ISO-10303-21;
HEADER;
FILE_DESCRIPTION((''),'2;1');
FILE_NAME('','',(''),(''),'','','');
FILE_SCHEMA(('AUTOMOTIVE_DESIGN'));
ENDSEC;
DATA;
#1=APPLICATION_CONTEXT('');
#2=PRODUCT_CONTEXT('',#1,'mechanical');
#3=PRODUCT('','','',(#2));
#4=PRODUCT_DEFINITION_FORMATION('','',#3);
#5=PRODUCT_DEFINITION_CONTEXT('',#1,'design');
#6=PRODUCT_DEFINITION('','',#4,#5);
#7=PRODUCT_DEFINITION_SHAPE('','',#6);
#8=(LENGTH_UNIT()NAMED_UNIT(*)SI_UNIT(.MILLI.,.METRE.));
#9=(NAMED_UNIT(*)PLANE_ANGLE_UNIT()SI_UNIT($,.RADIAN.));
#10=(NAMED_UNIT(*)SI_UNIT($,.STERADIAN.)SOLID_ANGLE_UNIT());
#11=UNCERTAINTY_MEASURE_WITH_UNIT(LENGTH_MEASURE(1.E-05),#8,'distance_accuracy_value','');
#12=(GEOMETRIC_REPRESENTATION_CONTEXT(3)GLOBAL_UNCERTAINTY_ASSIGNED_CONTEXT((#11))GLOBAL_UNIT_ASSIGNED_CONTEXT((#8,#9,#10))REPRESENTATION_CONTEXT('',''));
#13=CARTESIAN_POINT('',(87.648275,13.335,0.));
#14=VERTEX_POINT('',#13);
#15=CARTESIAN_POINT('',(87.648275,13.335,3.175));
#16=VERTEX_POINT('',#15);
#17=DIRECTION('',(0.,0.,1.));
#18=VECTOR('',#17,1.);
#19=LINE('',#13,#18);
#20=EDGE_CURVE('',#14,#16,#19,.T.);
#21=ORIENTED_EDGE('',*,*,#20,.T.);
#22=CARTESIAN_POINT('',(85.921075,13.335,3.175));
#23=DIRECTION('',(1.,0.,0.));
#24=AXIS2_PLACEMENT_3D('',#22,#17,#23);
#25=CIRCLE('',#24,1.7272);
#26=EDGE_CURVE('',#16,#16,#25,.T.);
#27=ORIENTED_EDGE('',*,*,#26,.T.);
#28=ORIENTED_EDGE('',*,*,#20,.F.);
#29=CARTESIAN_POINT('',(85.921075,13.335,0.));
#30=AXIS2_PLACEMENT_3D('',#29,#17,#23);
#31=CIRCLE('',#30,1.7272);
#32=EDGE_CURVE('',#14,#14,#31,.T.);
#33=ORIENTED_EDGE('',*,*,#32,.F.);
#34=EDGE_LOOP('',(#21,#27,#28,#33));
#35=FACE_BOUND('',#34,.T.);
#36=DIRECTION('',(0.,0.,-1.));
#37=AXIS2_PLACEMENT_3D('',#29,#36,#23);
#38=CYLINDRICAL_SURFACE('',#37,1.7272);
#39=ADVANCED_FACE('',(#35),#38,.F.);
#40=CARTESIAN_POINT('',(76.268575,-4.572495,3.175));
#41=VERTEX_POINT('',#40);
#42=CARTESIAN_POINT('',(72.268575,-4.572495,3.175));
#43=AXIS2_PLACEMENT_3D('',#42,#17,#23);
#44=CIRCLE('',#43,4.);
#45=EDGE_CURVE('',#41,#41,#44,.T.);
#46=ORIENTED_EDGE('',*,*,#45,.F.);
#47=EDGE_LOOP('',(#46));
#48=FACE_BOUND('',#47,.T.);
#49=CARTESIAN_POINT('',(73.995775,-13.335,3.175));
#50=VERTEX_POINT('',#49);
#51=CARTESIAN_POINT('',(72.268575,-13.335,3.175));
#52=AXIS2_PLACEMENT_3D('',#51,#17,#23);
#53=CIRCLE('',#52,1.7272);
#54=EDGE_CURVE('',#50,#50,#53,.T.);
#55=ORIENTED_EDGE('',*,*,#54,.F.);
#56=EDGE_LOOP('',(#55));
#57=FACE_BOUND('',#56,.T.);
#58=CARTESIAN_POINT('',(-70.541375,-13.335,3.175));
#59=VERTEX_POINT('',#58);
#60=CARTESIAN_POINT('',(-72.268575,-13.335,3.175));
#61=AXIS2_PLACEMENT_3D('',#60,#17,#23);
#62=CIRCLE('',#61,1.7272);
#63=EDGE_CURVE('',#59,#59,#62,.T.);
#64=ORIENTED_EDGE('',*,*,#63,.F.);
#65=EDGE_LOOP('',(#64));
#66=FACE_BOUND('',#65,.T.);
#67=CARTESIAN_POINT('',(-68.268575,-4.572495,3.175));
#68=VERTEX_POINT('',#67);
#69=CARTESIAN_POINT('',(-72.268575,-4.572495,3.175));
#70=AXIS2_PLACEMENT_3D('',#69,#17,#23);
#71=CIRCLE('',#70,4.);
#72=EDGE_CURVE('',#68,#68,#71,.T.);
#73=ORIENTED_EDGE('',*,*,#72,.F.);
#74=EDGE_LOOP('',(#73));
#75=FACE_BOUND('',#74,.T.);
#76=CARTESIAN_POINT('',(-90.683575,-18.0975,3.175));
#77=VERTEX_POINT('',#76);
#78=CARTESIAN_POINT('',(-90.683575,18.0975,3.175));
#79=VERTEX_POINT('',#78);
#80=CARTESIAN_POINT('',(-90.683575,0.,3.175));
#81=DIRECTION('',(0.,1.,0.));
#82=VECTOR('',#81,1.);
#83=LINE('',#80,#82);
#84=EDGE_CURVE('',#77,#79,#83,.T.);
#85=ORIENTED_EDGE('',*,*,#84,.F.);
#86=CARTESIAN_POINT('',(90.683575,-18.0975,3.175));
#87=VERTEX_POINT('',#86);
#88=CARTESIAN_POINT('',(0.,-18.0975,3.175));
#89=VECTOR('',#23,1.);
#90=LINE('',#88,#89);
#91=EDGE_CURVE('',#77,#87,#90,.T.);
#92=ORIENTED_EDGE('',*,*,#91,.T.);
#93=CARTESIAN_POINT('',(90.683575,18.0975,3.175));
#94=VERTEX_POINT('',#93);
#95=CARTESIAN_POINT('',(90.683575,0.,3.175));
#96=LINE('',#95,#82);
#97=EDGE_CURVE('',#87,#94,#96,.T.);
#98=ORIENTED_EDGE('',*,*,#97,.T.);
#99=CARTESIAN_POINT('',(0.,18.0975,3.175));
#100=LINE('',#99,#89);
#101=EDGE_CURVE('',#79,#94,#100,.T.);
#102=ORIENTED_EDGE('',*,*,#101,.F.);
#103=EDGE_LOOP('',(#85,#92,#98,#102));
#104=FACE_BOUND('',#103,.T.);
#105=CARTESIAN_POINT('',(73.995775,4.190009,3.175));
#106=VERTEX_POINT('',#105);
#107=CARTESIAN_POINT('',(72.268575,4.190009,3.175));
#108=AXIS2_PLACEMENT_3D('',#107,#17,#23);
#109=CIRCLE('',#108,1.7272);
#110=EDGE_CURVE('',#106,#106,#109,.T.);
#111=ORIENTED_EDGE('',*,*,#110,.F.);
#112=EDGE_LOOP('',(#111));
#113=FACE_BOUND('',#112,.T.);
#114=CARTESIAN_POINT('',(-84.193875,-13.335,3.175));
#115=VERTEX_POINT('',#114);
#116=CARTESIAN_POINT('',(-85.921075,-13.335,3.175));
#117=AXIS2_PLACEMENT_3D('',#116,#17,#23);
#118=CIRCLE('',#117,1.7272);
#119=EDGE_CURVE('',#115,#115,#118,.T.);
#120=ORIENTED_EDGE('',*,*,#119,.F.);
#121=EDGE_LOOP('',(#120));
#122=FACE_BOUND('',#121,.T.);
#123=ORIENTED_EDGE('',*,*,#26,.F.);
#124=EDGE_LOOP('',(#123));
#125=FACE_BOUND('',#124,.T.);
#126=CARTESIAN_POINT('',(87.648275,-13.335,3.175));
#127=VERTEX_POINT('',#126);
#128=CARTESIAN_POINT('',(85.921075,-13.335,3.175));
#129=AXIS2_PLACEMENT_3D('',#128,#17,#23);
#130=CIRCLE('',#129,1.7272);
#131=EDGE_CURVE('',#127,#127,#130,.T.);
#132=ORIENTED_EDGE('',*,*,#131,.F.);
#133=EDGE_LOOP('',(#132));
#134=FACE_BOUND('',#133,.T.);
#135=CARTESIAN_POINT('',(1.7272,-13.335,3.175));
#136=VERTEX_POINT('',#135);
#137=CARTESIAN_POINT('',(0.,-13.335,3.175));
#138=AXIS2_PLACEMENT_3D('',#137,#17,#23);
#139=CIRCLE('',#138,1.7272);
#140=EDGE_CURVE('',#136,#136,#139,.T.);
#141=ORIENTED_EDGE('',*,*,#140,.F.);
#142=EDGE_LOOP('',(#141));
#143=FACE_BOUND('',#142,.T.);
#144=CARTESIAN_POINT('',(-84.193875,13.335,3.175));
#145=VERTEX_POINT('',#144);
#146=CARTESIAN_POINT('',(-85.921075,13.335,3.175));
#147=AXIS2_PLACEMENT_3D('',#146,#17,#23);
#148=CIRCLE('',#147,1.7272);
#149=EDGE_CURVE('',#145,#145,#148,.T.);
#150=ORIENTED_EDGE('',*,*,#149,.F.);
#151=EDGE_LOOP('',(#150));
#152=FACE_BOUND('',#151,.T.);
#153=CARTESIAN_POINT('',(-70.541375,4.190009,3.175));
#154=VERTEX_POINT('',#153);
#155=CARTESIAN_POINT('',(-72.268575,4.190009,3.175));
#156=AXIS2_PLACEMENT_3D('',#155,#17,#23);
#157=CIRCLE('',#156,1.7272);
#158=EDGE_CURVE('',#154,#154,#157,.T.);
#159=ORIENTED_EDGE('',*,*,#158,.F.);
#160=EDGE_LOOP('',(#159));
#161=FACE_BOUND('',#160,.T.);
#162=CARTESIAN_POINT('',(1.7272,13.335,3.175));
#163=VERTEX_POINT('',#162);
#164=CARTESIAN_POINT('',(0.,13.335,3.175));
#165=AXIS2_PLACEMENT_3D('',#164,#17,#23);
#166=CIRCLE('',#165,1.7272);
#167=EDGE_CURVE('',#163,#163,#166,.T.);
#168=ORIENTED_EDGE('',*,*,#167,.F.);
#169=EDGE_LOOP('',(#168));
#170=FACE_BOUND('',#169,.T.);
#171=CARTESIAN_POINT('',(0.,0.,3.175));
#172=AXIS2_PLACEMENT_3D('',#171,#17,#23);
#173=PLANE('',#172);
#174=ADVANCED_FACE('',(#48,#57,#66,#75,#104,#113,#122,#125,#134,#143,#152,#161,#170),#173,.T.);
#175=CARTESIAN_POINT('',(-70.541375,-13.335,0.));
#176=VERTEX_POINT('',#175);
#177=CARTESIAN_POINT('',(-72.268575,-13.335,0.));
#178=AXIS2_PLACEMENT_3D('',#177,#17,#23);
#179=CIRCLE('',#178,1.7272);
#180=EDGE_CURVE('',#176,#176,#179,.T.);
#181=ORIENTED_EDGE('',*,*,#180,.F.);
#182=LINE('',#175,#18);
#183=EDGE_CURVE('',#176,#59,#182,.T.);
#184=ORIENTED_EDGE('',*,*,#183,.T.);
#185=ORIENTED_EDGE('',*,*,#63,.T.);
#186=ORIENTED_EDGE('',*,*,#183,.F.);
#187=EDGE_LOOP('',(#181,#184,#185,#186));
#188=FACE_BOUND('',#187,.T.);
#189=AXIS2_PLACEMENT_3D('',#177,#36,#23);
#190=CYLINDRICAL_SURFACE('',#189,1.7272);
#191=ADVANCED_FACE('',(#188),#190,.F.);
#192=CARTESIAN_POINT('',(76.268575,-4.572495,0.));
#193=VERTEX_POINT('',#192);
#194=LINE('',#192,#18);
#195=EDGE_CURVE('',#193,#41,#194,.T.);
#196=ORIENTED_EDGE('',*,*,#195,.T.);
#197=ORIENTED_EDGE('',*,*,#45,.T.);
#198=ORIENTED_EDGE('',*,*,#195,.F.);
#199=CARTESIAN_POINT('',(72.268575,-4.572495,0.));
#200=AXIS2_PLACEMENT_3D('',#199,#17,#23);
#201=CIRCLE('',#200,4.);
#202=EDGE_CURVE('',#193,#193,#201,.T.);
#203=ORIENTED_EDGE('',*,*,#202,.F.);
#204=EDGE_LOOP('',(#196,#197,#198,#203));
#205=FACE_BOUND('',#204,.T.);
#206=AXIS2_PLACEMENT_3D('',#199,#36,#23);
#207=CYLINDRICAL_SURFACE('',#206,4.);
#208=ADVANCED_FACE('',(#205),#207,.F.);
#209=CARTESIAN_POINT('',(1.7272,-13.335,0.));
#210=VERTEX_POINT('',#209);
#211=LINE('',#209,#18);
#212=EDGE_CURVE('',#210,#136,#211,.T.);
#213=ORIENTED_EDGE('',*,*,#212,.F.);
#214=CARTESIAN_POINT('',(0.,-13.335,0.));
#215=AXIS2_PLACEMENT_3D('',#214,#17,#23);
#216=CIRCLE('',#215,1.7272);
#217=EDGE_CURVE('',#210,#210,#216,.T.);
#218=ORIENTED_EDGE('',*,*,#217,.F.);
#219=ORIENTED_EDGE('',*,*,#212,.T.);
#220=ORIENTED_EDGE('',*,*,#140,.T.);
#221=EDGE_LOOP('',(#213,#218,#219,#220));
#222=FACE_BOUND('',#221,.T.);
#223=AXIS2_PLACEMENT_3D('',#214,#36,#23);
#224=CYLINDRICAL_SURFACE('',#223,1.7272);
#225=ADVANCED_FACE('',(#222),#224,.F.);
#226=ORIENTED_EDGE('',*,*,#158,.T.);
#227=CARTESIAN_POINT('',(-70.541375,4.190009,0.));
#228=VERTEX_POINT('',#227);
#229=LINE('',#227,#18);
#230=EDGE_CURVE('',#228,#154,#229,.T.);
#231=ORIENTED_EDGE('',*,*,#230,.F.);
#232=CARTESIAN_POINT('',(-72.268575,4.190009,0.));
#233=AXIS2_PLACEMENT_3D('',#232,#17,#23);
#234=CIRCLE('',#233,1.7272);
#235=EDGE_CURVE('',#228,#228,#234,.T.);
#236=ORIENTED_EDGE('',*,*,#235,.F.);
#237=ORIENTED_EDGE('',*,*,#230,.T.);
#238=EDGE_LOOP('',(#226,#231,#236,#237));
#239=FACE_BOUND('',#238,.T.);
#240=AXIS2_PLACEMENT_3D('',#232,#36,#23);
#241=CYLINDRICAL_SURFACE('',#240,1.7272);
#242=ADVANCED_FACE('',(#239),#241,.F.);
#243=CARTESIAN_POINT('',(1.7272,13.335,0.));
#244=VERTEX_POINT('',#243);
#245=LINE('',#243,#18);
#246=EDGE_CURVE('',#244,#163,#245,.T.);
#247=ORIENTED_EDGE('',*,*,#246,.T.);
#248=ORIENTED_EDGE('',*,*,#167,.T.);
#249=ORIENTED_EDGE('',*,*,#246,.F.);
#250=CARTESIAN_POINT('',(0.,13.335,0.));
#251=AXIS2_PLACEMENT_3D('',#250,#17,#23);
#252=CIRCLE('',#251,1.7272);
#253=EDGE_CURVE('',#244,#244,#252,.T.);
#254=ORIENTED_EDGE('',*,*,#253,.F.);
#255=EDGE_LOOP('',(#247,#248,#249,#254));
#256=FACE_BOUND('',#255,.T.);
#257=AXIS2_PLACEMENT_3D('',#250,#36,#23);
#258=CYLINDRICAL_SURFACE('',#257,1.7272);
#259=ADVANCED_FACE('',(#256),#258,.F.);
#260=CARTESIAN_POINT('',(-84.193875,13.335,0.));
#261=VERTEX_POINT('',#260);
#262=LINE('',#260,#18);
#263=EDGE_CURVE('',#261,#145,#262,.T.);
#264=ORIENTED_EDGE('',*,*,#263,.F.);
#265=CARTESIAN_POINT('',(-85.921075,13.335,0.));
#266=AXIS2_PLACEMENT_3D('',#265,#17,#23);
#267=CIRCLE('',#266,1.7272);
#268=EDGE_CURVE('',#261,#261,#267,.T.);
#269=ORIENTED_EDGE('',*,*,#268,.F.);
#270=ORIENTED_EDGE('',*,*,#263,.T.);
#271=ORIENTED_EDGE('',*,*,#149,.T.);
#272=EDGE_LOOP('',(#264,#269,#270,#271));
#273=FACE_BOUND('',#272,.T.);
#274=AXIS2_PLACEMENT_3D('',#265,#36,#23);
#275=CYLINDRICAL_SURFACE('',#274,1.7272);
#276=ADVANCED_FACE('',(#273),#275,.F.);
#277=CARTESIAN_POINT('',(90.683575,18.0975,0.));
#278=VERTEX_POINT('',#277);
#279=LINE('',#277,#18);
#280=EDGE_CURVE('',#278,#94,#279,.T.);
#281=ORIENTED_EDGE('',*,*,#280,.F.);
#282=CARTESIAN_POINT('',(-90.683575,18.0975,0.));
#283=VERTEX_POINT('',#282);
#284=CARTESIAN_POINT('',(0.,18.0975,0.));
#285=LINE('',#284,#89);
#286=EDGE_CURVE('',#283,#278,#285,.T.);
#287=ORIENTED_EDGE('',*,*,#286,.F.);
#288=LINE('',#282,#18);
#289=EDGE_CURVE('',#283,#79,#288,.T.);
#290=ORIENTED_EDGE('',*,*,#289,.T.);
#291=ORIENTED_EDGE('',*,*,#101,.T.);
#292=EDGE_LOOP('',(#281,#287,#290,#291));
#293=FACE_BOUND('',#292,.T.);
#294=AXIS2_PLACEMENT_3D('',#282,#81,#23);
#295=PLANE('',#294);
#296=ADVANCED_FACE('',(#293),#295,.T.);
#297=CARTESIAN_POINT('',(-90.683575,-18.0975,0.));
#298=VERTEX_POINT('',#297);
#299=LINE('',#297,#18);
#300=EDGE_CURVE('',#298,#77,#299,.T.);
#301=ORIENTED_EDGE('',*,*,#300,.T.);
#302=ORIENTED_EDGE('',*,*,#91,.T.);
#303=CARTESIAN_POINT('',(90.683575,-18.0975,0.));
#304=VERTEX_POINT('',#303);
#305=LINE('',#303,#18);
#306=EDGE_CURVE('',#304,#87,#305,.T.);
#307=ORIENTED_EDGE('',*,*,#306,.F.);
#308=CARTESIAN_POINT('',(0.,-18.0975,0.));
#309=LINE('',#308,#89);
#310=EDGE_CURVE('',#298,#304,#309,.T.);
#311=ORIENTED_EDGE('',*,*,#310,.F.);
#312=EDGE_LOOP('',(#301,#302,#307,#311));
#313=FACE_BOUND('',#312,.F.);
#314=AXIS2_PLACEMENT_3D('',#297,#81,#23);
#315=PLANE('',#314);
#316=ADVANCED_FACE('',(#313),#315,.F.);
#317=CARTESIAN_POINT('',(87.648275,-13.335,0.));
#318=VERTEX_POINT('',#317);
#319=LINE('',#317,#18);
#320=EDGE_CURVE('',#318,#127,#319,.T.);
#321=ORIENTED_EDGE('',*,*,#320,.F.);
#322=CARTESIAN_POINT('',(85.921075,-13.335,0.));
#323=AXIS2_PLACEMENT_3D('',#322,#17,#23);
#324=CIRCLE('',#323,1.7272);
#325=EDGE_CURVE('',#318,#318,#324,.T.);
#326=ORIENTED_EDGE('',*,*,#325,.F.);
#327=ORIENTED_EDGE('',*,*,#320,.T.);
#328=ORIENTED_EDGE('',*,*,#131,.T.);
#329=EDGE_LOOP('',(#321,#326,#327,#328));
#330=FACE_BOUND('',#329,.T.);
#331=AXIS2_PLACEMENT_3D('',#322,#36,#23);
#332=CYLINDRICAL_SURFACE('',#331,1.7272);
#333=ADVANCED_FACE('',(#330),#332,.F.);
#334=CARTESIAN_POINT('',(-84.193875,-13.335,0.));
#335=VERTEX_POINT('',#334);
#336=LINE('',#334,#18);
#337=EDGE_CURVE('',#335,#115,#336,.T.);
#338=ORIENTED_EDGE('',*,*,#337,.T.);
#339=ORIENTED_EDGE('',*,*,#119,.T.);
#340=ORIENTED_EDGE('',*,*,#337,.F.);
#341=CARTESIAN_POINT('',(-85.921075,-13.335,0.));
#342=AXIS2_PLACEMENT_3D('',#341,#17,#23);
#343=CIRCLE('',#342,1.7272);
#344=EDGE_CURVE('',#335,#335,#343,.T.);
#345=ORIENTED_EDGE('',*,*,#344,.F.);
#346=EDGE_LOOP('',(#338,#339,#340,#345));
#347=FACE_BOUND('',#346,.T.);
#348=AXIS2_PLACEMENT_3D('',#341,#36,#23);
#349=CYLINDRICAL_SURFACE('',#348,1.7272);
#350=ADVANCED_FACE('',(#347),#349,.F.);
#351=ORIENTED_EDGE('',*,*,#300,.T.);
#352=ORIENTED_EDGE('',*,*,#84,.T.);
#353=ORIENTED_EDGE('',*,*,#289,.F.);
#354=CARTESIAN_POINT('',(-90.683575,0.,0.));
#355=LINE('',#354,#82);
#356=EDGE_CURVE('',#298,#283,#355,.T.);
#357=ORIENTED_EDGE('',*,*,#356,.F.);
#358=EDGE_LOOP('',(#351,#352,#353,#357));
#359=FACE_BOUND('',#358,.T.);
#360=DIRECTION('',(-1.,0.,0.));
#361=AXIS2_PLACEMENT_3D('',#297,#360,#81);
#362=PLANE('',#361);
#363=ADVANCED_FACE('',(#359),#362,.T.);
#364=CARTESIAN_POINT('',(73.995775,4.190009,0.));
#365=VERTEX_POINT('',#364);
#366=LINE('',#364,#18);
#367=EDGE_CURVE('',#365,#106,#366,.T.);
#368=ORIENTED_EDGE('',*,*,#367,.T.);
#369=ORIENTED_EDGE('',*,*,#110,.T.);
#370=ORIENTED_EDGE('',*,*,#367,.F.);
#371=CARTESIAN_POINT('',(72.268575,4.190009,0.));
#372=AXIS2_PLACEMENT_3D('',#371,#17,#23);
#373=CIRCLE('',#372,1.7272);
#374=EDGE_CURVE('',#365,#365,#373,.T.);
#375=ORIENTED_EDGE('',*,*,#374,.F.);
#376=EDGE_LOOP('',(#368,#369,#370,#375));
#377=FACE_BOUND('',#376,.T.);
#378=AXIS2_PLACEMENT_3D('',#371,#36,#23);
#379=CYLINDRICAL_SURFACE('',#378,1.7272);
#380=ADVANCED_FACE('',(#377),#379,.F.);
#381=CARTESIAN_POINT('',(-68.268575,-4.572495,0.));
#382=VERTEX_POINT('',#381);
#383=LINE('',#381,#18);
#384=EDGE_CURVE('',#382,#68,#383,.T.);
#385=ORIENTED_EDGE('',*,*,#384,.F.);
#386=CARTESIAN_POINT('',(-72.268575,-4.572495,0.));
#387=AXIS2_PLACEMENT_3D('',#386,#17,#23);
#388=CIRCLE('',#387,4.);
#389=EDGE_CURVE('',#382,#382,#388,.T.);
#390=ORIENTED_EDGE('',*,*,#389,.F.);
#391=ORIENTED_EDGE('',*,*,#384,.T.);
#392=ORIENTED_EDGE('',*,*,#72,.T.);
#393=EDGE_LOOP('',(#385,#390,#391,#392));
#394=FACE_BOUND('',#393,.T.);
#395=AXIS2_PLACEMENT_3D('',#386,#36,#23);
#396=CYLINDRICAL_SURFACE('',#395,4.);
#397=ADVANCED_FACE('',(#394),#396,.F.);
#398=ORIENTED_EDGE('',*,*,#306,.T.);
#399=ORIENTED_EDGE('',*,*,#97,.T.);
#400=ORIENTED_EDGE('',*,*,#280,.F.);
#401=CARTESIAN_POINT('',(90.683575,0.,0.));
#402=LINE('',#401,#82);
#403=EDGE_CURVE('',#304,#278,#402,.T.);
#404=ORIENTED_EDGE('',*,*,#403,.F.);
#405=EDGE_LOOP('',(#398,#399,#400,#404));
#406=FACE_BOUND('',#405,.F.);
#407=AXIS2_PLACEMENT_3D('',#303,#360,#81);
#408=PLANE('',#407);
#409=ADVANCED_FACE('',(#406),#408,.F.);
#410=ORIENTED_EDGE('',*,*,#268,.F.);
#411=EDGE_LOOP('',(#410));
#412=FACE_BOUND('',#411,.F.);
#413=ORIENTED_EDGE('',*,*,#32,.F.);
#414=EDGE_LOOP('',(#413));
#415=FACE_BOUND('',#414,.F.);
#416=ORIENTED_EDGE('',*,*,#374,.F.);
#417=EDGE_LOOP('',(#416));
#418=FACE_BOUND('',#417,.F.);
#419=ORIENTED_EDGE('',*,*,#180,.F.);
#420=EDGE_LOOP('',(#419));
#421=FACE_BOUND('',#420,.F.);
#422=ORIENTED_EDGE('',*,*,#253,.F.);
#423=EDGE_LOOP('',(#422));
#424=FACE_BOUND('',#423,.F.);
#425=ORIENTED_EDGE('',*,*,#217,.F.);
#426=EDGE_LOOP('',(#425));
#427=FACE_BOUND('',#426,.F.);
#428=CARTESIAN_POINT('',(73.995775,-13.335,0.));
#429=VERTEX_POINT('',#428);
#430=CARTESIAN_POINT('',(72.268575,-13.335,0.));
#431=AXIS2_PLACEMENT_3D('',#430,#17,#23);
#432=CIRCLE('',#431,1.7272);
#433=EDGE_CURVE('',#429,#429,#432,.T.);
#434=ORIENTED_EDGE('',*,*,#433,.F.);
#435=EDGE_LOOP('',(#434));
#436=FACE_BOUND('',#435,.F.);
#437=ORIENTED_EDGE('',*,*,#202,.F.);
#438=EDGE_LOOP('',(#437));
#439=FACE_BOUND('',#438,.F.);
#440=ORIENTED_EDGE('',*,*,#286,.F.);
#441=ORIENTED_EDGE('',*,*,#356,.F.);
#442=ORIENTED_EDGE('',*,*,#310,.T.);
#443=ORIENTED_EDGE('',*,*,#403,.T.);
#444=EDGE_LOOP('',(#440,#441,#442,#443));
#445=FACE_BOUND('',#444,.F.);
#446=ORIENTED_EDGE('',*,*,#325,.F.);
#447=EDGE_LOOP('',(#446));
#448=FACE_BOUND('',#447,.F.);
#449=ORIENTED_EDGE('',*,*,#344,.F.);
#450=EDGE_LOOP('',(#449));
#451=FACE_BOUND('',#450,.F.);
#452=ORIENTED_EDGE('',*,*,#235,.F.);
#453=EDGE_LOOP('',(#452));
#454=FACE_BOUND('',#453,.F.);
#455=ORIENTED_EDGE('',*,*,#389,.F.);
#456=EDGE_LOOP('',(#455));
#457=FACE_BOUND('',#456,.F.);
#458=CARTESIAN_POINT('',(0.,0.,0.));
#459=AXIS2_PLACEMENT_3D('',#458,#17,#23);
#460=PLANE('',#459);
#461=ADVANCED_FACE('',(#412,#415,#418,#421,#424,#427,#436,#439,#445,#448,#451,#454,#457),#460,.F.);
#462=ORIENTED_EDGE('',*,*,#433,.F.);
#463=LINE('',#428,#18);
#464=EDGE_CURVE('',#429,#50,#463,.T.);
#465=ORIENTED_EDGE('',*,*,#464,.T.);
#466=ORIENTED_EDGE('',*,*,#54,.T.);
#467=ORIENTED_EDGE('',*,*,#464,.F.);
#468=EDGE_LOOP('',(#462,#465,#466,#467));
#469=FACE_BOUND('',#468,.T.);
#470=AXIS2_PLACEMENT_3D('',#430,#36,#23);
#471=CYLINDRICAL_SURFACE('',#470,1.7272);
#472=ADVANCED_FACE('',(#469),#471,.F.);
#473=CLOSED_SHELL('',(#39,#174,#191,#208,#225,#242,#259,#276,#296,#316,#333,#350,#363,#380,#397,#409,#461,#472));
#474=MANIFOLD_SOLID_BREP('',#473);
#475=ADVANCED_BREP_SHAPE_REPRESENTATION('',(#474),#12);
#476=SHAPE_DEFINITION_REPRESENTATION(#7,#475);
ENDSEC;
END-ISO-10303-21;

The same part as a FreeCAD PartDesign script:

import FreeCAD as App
import Part
import Sketcher
Q = App.Units.Quantity

doc = App.newDocument("Part")
body = doc.addObject("PartDesign::Body", "Body")

sketch1 = doc.addObject("Sketcher::SketchObject", "Sketch")
body.addObject(sketch1)
sketch1.AttachmentSupport = (doc.XY_Plane, [""])
sketch1.MapMode = "FlatFace"
sketch1.addGeometry([
    Part.LineSegment(App.Vector(-90.7, 18.1, 0), App.Vector(-90.7, -18.1, 0)),
    Part.LineSegment(App.Vector(-90.7, -18.1, 0), App.Vector(90.7, -18.1, 0)),
    Part.LineSegment(App.Vector(90.7, -18.1, 0), App.Vector(90.7, 18.1, 0)),
    Part.LineSegment(App.Vector(90.7, 18.1, 0), App.Vector(-90.7, 18.1, 0)),
    Part.Circle(App.Vector(-85.9, -13.3, 0), App.Vector(0, 0, 1), 1.7),
    Part.Circle(App.Vector(-72.3, -13.3, 0), App.Vector(0, 0, 1), 1.7),
    Part.Circle(App.Vector(-72.3, -4.6, 0), App.Vector(0, 0, 1), 4),
    Part.Circle(App.Vector(0, -13.3, 0), App.Vector(0, 0, 1), 1.7),
    Part.Circle(App.Vector(72.3, -13.3, 0), App.Vector(0, 0, 1), 1.7),
    Part.Circle(App.Vector(85.9, -13.3, 0), App.Vector(0, 0, 1), 1.7),
    Part.Circle(App.Vector(72.3, -4.6, 0), App.Vector(0, 0, 1), 4),
    Part.Circle(App.Vector(-72.3, 4.2, 0), App.Vector(0, 0, 1), 1.7),
    Part.Circle(App.Vector(-85.9, 13.3, 0), App.Vector(0, 0, 1), 1.7),
    Part.Circle(App.Vector(72.3, 4.2, 0), App.Vector(0, 0, 1), 1.7),
    Part.Circle(App.Vector(0, 13.3, 0), App.Vector(0, 0, 1), 1.7),
    Part.Circle(App.Vector(85.9, 13.3, 0), App.Vector(0, 0, 1), 1.7),
], False)
sketch1.addConstraint([
    Sketcher.Constraint("Coincident", 0, 2, 1, 1),
    Sketcher.Constraint("Coincident", 1, 2, 2, 1),
    Sketcher.Constraint("Coincident", 2, 2, 3, 1),
    Sketcher.Constraint("Coincident", 3, 2, 0, 1),
    Sketcher.Constraint("Vertical", 0),
    Sketcher.Constraint("Horizontal", 1),
    Sketcher.Constraint("Vertical", 2),
    Sketcher.Constraint("Horizontal", 3),
    Sketcher.Constraint("Equal", 4, 5),
    Sketcher.Constraint("Equal", 5, 7),
    Sketcher.Constraint("Equal", 7, 8),
    Sketcher.Constraint("Equal", 8, 9),
    Sketcher.Constraint("Equal", 6, 10),
    Sketcher.Constraint("Equal", 9, 11),
    Sketcher.Constraint("Equal", 11, 12),
    Sketcher.Constraint("Equal", 12, 13),
    Sketcher.Constraint("Equal", 13, 14),
    Sketcher.Constraint("Equal", 14, 15),
    Sketcher.Constraint("Symmetric", 9, 3, 12, 3, -1, 1),
    Sketcher.Constraint("Symmetric", 7, 3, 14, 3, -1, 1),
    Sketcher.Constraint("Symmetric", 4, 3, 15, 3, -1, 1),
    Sketcher.Constraint("Symmetric", 0, 2, 2, 2, -1, 1),
    Sketcher.Constraint("Symmetric", 5, 3, 8, 3, -2),
    Sketcher.Constraint("Symmetric", 4, 3, 9, 3, -2),
    Sketcher.Constraint("Symmetric", 6, 3, 10, 3, -2),
    Sketcher.Constraint("Symmetric", 11, 3, 13, 3, -2),
    Sketcher.Constraint("PointOnObject", 7, 3, -2),
    Sketcher.Constraint("Horizontal", 4, 3, 5, 3),
    Sketcher.Constraint("Horizontal", 5, 3, 7, 3),
    Sketcher.Constraint("Vertical", 5, 3, 6, 3),
    Sketcher.Constraint("Vertical", 6, 3, 11, 3),
    Sketcher.Constraint("Diameter", 4, Q("0.136 in")),
    Sketcher.Constraint("Diameter", 6, Q("8 mm")),
    Sketcher.Constraint("DistanceY", 0, 2, 0, 1, Q("1.425 in")),
    Sketcher.Constraint("DistanceY", 4, 3, 12, 3, Q("1.05 in")),
    Sketcher.Constraint("DistanceX", 0, 2, 4, 3, Q("0.1875 in")),
    Sketcher.Constraint("DistanceX", 0, 2, 5, 3, Q("0.725 in")),
    Sketcher.Constraint("DistanceX", 1, 1, 1, 2, Q("181.36715 mm")),
    Sketcher.Constraint("DistanceY", -1, 1, 11, 3, Q("4.190009 mm")),
    Sketcher.Constraint("DistanceY", 6, 3, -1, 1, Q("4.572495 mm")),
])
pad1 = doc.addObject("PartDesign::Pad", "Pad")
body.addObject(pad1)
pad1.Profile = sketch1
pad1.Length = Q("0.125 in")

doc.recompute()
